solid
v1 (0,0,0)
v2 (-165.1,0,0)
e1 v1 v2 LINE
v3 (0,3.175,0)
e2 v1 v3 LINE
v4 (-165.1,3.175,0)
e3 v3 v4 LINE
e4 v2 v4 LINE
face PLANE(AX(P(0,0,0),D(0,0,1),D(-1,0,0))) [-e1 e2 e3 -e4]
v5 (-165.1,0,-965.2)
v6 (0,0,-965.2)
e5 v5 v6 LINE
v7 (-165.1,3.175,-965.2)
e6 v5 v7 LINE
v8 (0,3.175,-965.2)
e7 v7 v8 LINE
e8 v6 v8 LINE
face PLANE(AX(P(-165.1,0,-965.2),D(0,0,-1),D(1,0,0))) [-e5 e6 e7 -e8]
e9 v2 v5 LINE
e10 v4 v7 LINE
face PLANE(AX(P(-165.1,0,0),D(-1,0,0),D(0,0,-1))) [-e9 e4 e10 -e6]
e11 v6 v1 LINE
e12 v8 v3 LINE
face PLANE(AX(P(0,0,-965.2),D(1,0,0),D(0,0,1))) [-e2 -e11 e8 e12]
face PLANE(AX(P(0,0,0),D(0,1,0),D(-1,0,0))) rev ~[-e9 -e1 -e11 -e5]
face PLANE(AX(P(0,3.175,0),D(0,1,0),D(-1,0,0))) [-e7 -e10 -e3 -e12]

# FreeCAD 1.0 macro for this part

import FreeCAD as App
import Part
import Sketcher
from FreeCAD import Vector
Q = App.Units.Quantity

doc = App.newDocument("Part")
body = doc.addObject("PartDesign::Body", "Body")

sketch1 = body.newObject("Sketcher::SketchObject", "Sketch")
sketch1.AttachmentSupport = (doc.getObject("XZ_Plane"), [""])
sketch1.MapMode = "FlatFace"
sketch1.addGeometry([
    Part.LineSegment(Vector(-165.1, 0, 0), Vector(0, 0, 0)),
    Part.LineSegment(Vector(0, 0, 0), Vector(0, -965.2, 0)),
    Part.LineSegment(Vector(0, -965.2, 0), Vector(-165.1, -965.2, 0)),
    Part.LineSegment(Vector(-165.1, -965.2, 0), Vector(-165.1, 0, 0)),
], False)
sketch1.addConstraint([
    Sketcher.Constraint("Coincident", 0, 2, 1, 1),
    Sketcher.Constraint("Coincident", 1, 2, 2, 1),
    Sketcher.Constraint("Coincident", 2, 2, 3, 1),
    Sketcher.Constraint("Coincident", 3, 2, 0, 1),
    Sketcher.Constraint("Horizontal", 0),
    Sketcher.Constraint("Vertical", 1),
    Sketcher.Constraint("Horizontal", 2),
    Sketcher.Constraint("Vertical", 3),
    Sketcher.Constraint("Coincident", 0, 2, -1, 1),
    Sketcher.Constraint("DistanceY", 1, 2, 1, 1, Q("38 in")),
    Sketcher.Constraint("DistanceX", 0, 1, 0, 2, Q("6.5 in")),
])
pad1 = body.newObject("PartDesign::Pad", "Pad")
pad1.Profile = sketch1
pad1.Length = Q("0.125 in")
pad1.Reversed = True

doc.recompute()
